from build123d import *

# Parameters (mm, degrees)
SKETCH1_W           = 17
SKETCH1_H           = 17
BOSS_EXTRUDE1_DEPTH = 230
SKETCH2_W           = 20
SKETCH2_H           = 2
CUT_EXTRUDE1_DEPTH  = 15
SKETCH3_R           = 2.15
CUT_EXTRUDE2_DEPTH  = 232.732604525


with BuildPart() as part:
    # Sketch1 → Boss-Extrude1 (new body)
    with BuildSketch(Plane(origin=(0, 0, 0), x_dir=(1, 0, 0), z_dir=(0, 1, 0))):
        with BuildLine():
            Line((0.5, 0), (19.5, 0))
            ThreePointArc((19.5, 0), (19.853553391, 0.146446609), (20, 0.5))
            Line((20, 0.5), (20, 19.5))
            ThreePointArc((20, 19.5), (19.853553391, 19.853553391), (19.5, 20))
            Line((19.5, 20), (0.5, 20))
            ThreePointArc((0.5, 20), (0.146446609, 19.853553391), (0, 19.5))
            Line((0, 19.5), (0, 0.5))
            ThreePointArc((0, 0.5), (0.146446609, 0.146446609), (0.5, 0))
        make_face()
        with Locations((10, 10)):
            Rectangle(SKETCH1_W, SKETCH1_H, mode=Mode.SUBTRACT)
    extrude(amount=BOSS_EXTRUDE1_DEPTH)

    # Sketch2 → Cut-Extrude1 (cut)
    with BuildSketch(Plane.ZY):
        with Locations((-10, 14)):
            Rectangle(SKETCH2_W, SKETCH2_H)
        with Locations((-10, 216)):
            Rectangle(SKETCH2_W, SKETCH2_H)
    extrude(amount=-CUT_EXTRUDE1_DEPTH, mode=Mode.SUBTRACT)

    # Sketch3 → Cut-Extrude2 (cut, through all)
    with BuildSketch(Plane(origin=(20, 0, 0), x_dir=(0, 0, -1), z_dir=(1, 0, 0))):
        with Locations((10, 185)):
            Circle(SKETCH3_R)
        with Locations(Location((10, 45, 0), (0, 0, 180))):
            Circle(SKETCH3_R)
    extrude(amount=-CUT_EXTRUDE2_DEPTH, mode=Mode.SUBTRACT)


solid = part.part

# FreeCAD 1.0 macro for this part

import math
import FreeCAD as App
import Part
import Sketcher

V = App.Vector
Q = App.Units.Quantity


def add_polygon(sketch, points):
    """Adds a closed chain of lines whose ends are joined by coincident constraints."""
    first, n = sketch.GeometryCount, len(points)
    for a, b in zip(points, points[1:] + points[:1]):
        sketch.addGeometry(Part.LineSegment(App.Vector(*a, 0), App.Vector(*b, 0)), False)
    for i in range(n):
        sketch.addConstraint(Sketcher.Constraint("Coincident", first + i, 2, first + (i + 1) % n, 1))

doc = App.newDocument("Part")
body = doc.addObject("PartDesign::Body", "Body")

# Sketch on XZ plane
sketch1 = body.newObject("Sketcher::SketchObject", "Sketch")
sketch1.AttachmentSupport = (doc.getObject("XZ_Plane"), [""])
sketch1.MapMode = "FlatFace"
sketch1.addGeometry(Part.LineSegment(V(0.5, 0, 0), V(19.5, 0, 0)), False)  # 0
sketch1.addGeometry(Part.ArcOfCircle(Part.Circle(V(19.5, -0.5, 0), V(0, 0, 1), 0.5), math.radians(0), math.radians(90)), False)  # 1
sketch1.addGeometry(Part.LineSegment(V(20, -0.5, 0), V(20, -19.5, 0)), False)  # 2
sketch1.addGeometry(Part.ArcOfCircle(Part.Circle(V(19.5, -19.5, 0), V(0, 0, 1), 0.5), math.radians(-90), math.radians(0)), False)  # 3
sketch1.addGeometry(Part.LineSegment(V(19.5, -20, 0), V(0.5, -20, 0)), False)  # 4
sketch1.addGeometry(Part.ArcOfCircle(Part.Circle(V(0.5, -19.5, 0), V(0, 0, 1), 0.5), math.radians(180), math.radians(270)), False)  # 5
sketch1.addGeometry(Part.LineSegment(V(0, -19.5, 0), V(0, -0.5, 0)), False)  # 6
sketch1.addGeometry(Part.ArcOfCircle(Part.Circle(V(0.5, -0.5, 0), V(0, 0, 1), 0.5), math.radians(90), math.radians(180)), False)  # 7
add_polygon(sketch1, [(18.5, -1.5), (1.5, -1.5), (1.5, -18.5), (18.5, -18.5)])  # lines 8-11
sketch1.addConstraint(Sketcher.Constraint("Tangent", 0, 2, 1, 2))
sketch1.addConstraint(Sketcher.Constraint("Tangent", 1, 1, 2, 1))
sketch1.addConstraint(Sketcher.Constraint("Tangent", 2, 2, 3, 2))
sketch1.addConstraint(Sketcher.Constraint("Tangent", 3, 1, 4, 1))
sketch1.addConstraint(Sketcher.Constraint("Tangent", 4, 2, 5, 2))
sketch1.addConstraint(Sketcher.Constraint("Tangent", 5, 1, 6, 1))
sketch1.addConstraint(Sketcher.Constraint("Tangent", 6, 2, 7, 2))
sketch1.addConstraint(Sketcher.Constraint("Tangent", 7, 1, 0, 1))
sketch1.addConstraint(Sketcher.Constraint("Horizontal", 0))
sketch1.addConstraint(Sketcher.Constraint("Vertical", 2))
sketch1.addConstraint(Sketcher.Constraint("Horizontal", 4))
sketch1.addConstraint(Sketcher.Constraint("Vertical", 6))
sketch1.addConstraint(Sketcher.Constraint("Horizontal", 8))
sketch1.addConstraint(Sketcher.Constraint("Vertical", 9))
sketch1.addConstraint(Sketcher.Constraint("Horizontal", 10))
sketch1.addConstraint(Sketcher.Constraint("Vertical", 11))
sketch1.addConstraint(Sketcher.Constraint("Equal", 1, 3))
sketch1.addConstraint(Sketcher.Constraint("Equal", 3, 5))
sketch1.addConstraint(Sketcher.Constraint("Equal", 5, 7))
sketch1.addConstraint(Sketcher.Constraint("PointOnObject", 0, 2, -1))
sketch1.addConstraint(Sketcher.Constraint("PointOnObject", 5, 1, -2))
sketch1.addConstraint(Sketcher.Constraint("Equal", 4, 2))
sketch1.addConstraint(Sketcher.Constraint("Equal", 10, 9))
sketch1.addConstraint(Sketcher.Constraint("Radius", 1, Q("0.5 mm")))
sketch1.addConstraint(Sketcher.Constraint("DistanceX", 0, 1, 0, 2, Q("19 mm")))
sketch1.addConstraint(Sketcher.Constraint("DistanceX", 8, 2, 8, 1, Q("17 mm")))
sketch1.addConstraint(Sketcher.Constraint("DistanceX", 7, 3, 8, 2, Q("1 mm")))
sketch1.addConstraint(Sketcher.Constraint("DistanceY", 8, 2, 7, 3, Q("1 mm")))
pad1 = body.newObject("PartDesign::Pad", "Pad")
pad1.Profile = sketch1
pad1.Length = 230
pad1.Reversed = True

# Sketch on YZ plane
sketch2 = body.newObject("Sketcher::SketchObject", "Sketch001")
sketch2.AttachmentSupport = (doc.getObject("YZ_Plane"), [""])
sketch2.MapMode = "FlatFace"
add_polygon(sketch2, [(15, -20), (13, -20), (13, 0), (15, 0)])  # lines 0-3
add_polygon(sketch2, [(217, -20), (215, -20), (215, 0), (217, 0)])  # lines 4-7
sketch2.addConstraint(Sketcher.Constraint("Horizontal", 0))
sketch2.addConstraint(Sketcher.Constraint("Vertical", 1))
sketch2.addConstraint(Sketcher.Constraint("Horizontal", 2))
sketch2.addConstraint(Sketcher.Constraint("Vertical", 3))
sketch2.addConstraint(Sketcher.Constraint("Horizontal", 4))
sketch2.addConstraint(Sketcher.Constraint("Vertical", 5))
sketch2.addConstraint(Sketcher.Constraint("Horizontal", 6))
sketch2.addConstraint(Sketcher.Constraint("Vertical", 7))
sketch2.addConstraint(Sketcher.Constraint("PointOnObject", 1, 2, -1))
sketch2.addConstraint(Sketcher.Constraint("PointOnObject", 5, 2, -1))
sketch2.addConstraint(Sketcher.Constraint("Horizontal", 3, 2, 4, 2))
sketch2.addConstraint(Sketcher.Constraint("Equal", 2, 4))
sketch2.addConstraint(Sketcher.Constraint("DistanceX", 0, 2, 0, 1, Q("2 mm")))
sketch2.addConstraint(Sketcher.Constraint("DistanceY", 1, 1, 1, 2, Q("20 mm")))
sketch2.addConstraint(Sketcher.Constraint("DistanceX", -1, 1, 0, 2, Q("13 mm")))
sketch2.addConstraint(Sketcher.Constraint("DistanceX", -1, 1, 4, 2, Q("215 mm")))
pocket1 = body.newObject("PartDesign::Pocket", "Pocket")
pocket1.Profile = sketch2
pocket1.Length = 15
pocket1.Reversed = True

# Sketch on YZ plane
sketch3 = body.newObject("Sketcher::SketchObject", "Sketch002")
sketch3.AttachmentSupport = (doc.getObject("YZ_Plane"), [""])
sketch3.MapMode = "FlatFace"
sketch3.AttachmentOffset = App.Placement(V(0, 0, 20), App.Rotation())
sketch3.addGeometry(Part.Circle(V(185, -10, 0), V(0, 0, 1), 2.1), False)
sketch3.addGeometry(Part.Circle(V(45, -10, 0), V(0, 0, 1), 2.1), False)
sketch3.addConstraint(Sketcher.Constraint("Equal", 0, 1))
sketch3.addConstraint(Sketcher.Constraint("Horizontal", 0, 3, 1, 3))
sketch3.addConstraint(Sketcher.Constraint("Diameter", 0, Q("4.3 mm")))
sketch3.addConstraint(Sketcher.Constraint("DistanceX", -1, 1, 0, 3, Q("185 mm")))
sketch3.addConstraint(Sketcher.Constraint("DistanceY", 0, 3, -1, 1, Q("10 mm")))
sketch3.addConstraint(Sketcher.Constraint("DistanceX", -1, 1, 1, 3, Q("45 mm")))
pocket2 = body.newObject("PartDesign::Pocket", "Pocket001")
pocket2.Profile = sketch3
pocket2.Type = "ThroughAll"

doc.recompute()
